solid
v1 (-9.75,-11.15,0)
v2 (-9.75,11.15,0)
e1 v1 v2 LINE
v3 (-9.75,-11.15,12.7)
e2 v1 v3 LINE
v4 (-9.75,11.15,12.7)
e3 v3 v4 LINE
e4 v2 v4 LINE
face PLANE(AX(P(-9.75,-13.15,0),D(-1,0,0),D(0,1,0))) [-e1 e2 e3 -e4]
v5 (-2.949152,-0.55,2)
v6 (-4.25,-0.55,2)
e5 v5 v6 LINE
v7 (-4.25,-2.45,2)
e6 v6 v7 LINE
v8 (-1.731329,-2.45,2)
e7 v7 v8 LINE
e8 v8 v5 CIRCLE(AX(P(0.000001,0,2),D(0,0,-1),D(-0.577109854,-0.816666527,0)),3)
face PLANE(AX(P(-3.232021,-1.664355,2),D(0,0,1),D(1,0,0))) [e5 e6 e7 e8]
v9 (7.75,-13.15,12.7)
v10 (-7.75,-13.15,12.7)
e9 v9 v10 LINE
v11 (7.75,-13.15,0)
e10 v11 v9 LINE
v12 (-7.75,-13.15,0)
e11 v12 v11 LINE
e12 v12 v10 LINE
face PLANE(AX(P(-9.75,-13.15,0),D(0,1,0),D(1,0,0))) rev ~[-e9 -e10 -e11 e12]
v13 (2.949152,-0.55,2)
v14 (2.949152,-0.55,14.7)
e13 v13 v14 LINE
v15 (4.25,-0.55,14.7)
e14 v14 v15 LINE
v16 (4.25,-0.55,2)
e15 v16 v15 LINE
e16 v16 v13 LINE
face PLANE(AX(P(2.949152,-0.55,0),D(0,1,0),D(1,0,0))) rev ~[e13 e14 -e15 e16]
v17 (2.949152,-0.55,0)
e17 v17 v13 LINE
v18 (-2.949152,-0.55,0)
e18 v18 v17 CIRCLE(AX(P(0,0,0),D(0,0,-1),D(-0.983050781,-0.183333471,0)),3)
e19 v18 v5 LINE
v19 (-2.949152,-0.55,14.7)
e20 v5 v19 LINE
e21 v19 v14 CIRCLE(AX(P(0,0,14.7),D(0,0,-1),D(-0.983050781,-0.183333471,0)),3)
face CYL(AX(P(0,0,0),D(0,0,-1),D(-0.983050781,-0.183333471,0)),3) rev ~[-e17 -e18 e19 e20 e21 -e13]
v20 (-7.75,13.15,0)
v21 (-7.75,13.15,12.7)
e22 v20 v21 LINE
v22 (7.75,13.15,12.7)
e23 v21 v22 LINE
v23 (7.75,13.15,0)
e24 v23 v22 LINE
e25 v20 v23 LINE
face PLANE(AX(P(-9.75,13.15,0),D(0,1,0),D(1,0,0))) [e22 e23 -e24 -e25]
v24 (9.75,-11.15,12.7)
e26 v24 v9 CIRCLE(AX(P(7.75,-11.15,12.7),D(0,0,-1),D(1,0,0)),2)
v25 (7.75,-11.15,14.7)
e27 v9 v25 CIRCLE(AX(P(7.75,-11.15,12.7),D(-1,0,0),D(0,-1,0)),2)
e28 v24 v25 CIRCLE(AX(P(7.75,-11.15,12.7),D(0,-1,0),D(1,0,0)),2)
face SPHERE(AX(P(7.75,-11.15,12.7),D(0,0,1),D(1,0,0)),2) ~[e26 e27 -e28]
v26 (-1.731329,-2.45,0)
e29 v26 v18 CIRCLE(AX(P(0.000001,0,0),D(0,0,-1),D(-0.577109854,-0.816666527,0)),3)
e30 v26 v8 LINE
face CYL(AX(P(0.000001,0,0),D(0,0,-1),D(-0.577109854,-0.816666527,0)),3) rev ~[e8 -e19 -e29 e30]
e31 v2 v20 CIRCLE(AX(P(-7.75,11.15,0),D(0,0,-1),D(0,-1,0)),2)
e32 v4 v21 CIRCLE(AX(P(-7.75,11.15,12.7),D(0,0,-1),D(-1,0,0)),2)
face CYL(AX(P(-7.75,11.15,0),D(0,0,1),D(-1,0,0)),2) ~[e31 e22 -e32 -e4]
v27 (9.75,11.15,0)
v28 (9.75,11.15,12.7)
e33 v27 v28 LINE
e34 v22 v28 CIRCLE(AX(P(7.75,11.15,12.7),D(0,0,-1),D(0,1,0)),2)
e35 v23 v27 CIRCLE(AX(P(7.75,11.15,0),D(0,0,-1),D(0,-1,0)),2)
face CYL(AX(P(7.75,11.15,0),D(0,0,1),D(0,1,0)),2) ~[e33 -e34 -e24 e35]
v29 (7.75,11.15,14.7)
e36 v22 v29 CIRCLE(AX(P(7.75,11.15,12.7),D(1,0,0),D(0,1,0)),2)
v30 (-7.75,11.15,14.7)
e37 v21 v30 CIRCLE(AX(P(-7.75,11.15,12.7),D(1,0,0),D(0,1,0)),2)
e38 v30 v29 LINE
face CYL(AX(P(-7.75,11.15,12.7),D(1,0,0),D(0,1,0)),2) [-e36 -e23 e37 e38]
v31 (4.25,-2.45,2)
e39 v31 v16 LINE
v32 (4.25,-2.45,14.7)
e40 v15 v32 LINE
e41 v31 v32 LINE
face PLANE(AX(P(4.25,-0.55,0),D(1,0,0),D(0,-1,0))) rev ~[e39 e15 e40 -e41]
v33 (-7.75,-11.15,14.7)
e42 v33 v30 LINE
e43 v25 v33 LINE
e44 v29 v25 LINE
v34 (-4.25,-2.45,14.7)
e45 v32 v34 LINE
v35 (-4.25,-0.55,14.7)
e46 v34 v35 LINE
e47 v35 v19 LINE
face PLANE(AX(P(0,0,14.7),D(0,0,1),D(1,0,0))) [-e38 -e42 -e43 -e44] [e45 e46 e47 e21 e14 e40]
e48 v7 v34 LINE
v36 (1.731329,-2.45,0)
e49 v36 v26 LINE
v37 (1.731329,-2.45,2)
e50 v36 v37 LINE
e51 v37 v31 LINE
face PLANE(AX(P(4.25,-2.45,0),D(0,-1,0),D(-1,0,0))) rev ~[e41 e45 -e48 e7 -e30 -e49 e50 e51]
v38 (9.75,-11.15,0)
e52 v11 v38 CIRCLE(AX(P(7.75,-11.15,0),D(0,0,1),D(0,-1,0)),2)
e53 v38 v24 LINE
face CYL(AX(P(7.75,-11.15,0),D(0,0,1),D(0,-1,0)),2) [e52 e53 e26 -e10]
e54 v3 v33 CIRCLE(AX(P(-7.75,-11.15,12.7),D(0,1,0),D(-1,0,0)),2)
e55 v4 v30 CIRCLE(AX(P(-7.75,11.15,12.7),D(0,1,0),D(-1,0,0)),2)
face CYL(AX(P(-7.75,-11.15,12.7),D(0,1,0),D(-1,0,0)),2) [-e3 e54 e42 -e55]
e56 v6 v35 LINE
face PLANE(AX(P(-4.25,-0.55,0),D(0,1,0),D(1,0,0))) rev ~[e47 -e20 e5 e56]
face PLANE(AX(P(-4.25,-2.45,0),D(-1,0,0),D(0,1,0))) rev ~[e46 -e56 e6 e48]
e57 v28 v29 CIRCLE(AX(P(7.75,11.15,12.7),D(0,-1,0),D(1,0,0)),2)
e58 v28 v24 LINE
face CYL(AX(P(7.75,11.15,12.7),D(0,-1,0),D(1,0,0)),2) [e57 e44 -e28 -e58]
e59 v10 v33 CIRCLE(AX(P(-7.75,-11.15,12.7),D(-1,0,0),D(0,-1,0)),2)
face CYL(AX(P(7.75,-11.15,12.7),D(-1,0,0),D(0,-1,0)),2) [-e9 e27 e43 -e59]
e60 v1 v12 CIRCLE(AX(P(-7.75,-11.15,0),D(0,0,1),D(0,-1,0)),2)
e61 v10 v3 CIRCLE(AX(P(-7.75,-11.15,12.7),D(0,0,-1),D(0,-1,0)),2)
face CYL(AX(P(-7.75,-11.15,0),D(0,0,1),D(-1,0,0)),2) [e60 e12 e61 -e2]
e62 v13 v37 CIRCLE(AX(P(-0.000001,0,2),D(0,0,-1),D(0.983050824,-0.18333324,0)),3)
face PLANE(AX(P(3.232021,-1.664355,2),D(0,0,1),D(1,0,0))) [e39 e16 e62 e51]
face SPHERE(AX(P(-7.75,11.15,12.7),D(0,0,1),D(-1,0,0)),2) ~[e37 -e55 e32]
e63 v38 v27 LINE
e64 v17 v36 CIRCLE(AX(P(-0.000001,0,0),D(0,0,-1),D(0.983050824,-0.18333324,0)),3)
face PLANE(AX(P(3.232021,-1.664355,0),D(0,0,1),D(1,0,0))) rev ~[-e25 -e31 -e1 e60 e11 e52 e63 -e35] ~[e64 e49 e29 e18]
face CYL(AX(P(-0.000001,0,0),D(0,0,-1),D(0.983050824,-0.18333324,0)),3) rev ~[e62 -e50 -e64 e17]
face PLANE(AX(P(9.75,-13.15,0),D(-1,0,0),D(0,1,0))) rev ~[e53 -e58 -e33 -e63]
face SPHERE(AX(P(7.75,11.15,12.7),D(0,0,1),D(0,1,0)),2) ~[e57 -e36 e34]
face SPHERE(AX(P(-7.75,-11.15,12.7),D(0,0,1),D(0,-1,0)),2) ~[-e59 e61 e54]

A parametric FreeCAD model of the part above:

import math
import FreeCAD as App
import Part
import Sketcher


def edges_at(feature, points):
    """Names of the edges that pass closest to the given points."""
    edges = feature.Shape.Edges
    near = lambda p: min(range(len(edges)), key=lambda i: edges[i].distToShape(Part.Vertex(*p))[0])
    return sorted({f"Edge{near(p) + 1}" for p in points})


def add_polygon(sketch, points):
    """Adds a closed chain of lines whose ends are joined by coincident constraints."""
    first, n = sketch.GeometryCount, len(points)
    for a, b in zip(points, points[1:] + points[:1]):
        sketch.addGeometry(Part.LineSegment(App.Vector(*a, 0), App.Vector(*b, 0)), False)
    for i in range(n):
        sketch.addConstraint(Sketcher.Constraint("Coincident", first + i, 2, first + (i + 1) % n, 1))

doc = App.newDocument("Part")
params = doc.addObject("Spreadsheet::Sheet", "Params")
for row, (alias, value) in enumerate([
    ("sketch1_radius", "3 mm"),
    ("sketch1_width", "19.5 mm"),
    ("sketch1_width2", "8.5 mm"),
    ("sketch1_height", "26.3 mm"),
    ("sketch1_height2", "1.9 mm"),
    ("pad1_length", "14.7 mm"),
    ("fillet_radius", "2 mm"),
    ("fillet2_radius", "2 mm"),
    ("sketch2_radius", "3 mm"),
    ("sketch2_height", "1.9 mm"),
    ("pad2_length", "2 mm"),
], start=1):
    params.set(f"A{row}", alias)
    params.set(f"B{row}", "=" + value)
    params.setAlias(f"B{row}", alias)

body = doc.addObject("PartDesign::Body", "Body")

sketch1 = body.newObject("Sketcher::SketchObject", "Sketch")
sketch1.AttachmentSupport = (doc.getObject("XY_Plane"), [""])
sketch1.MapMode = "FlatFace"
add_polygon(sketch1, [(-9.75, 13.15), (-9.75, -13.15), (9.75, -13.15), (9.75, 13.15)])
sketch1.addGeometry(Part.LineSegment(App.Vector(-4.25, -0.55, 0), App.Vector(-2.949152, -0.55, 0)), False)
sketch1.addGeometry(Part.ArcOfCircle(Part.Circle(App.Vector(0, 0, 0), App.Vector(0, 0, 1), 3), math.radians(-10.563986), math.radians(190.563986)), False)
sketch1.addGeometry(Part.LineSegment(App.Vector(2.949152, -0.55, 0), App.Vector(4.25, -0.55, 0)), False)
sketch1.addGeometry(Part.LineSegment(App.Vector(4.25, -0.55, 0), App.Vector(4.25, -2.45, 0)), False)
sketch1.addGeometry(Part.LineSegment(App.Vector(4.25, -2.45, 0), App.Vector(-4.25, -2.45, 0)), False)
sketch1.addGeometry(Part.LineSegment(App.Vector(-4.25, -2.45, 0), App.Vector(-4.25, -0.55, 0)), False)
sketch1.addConstraint(Sketcher.Constraint("Coincident", 4, 2, 5, 2))
sketch1.addConstraint(Sketcher.Constraint("Coincident", 5, 1, 6, 1))
sketch1.addConstraint(Sketcher.Constraint("Coincident", 6, 2, 7, 1))
sketch1.addConstraint(Sketcher.Constraint("Coincident", 7, 2, 8, 1))
sketch1.addConstraint(Sketcher.Constraint("Coincident", 8, 2, 9, 1))
sketch1.addConstraint(Sketcher.Constraint("Coincident", 9, 2, 4, 1))
sketch1.addConstraint(Sketcher.Constraint("Vertical", 0))
sketch1.addConstraint(Sketcher.Constraint("Horizontal", 1))
sketch1.addConstraint(Sketcher.Constraint("Vertical", 2))
sketch1.addConstraint(Sketcher.Constraint("Horizontal", 3))
sketch1.addConstraint(Sketcher.Constraint("Horizontal", 4))
sketch1.addConstraint(Sketcher.Constraint("Horizontal", 6))
sketch1.addConstraint(Sketcher.Constraint("Vertical", 7))
sketch1.addConstraint(Sketcher.Constraint("Horizontal", 8))
sketch1.addConstraint(Sketcher.Constraint("Vertical", 9))
sketch1.addConstraint(Sketcher.Constraint("Coincident", 5, 3, -1, 1))
sketch1.addConstraint(Sketcher.Constraint("Symmetric", 0, 2, 2, 2, -1, 1))
sketch1.addConstraint(Sketcher.Constraint("Symmetric", 6, 2, 9, 2, -2))
sketch1.addConstraint(Sketcher.Constraint("Radius", 5, 3.0))
sketch1.addConstraint(Sketcher.Constraint("DistanceX", 1, 1, 1, 2, 19.5))
sketch1.addConstraint(Sketcher.Constraint("DistanceX", 8, 2, 8, 1, 8.5))
sketch1.addConstraint(Sketcher.Constraint("DistanceY", 0, 2, 0, 1, 26.3))
sketch1.addConstraint(Sketcher.Constraint("DistanceY", 7, 2, 7, 1, 1.9))
sketch1.addConstraint(Sketcher.Constraint("DistanceY", 0, 2, 4, 2, 12.6))
sketch1.setExpression("Constraints[22]", "Params.sketch1_radius")
sketch1.setExpression("Constraints[23]", "Params.sketch1_width")
sketch1.setExpression("Constraints[24]", "Params.sketch1_width2")
sketch1.setExpression("Constraints[25]", "Params.sketch1_height")
sketch1.setExpression("Constraints[26]", "Params.sketch1_height2")
pad1 = body.newObject("PartDesign::Pad", "Pad")
pad1.Profile = sketch1
pad1.setExpression("Length", "Params.pad1_length")
doc.recompute()

fillet = body.newObject("PartDesign::Fillet", "Fillet")
fillet.Base = (pad1, edges_at(pad1, [
    (-9.75, 13.15, 7.35),
    (-9.75, -13.15, 7.35),
    (9.75, -13.15, 7.35),
    (9.75, 13.15, 7.35),
]))
fillet.setExpression("Radius", "Params.fillet_radius")
doc.recompute()

fillet2 = body.newObject("PartDesign::Fillet", "Fillet001")
fillet2.Base = (fillet, edges_at(fillet, [(-9.75, 0, 14.7)]))
fillet2.setExpression("Radius", "Params.fillet2_radius")

sketch2 = body.newObject("Sketcher::SketchObject", "Sketch001")
sketch2.AttachmentSupport = (doc.getObject("XY_Plane"), [""])
sketch2.MapMode = "FlatFace"
sketch2.addGeometry(Part.LineSegment(App.Vector(4.25, -0.55, 0), App.Vector(2.949152, -0.55, 0)), False)
sketch2.addGeometry(Part.ArcOfCircle(Part.Circle(App.Vector(-0.000001, 0, 0), App.Vector(0, 0, 1), 3), math.radians(-54.752479), math.radians(-10.563972)), False)
sketch2.addGeometry(Part.LineSegment(App.Vector(1.731329, -2.45, 0), App.Vector(4.25, -2.45, 0)), False)
sketch2.addGeometry(Part.LineSegment(App.Vector(4.25, -2.45, 0), App.Vector(4.25, -0.55, 0)), False)
sketch2.addGeometry(Part.ArcOfCircle(Part.Circle(App.Vector(0.000001, 0, 0), App.Vector(0, 0, 1), 3), math.radians(-169.436028), math.radians(-125.247521)), False)
sketch2.addGeometry(Part.LineSegment(App.Vector(-2.949152, -0.55, 0), App.Vector(-4.25, -0.55, 0)), False)
sketch2.addGeometry(Part.LineSegment(App.Vector(-4.25, -0.55, 0), App.Vector(-4.25, -2.45, 0)), False)
sketch2.addGeometry(Part.LineSegment(App.Vector(-4.25, -2.45, 0), App.Vector(-1.731329, -2.45, 0)), False)
sketch2.addConstraint(Sketcher.Constraint("Coincident", 0, 2, 1, 2))
sketch2.addConstraint(Sketcher.Constraint("Coincident", 1, 1, 2, 1))
sketch2.addConstraint(Sketcher.Constraint("Coincident", 2, 2, 3, 1))
sketch2.addConstraint(Sketcher.Constraint("Coincident", 3, 2, 0, 1))
sketch2.addConstraint(Sketcher.Constraint("Coincident", 4, 1, 5, 1))
sketch2.addConstraint(Sketcher.Constraint("Coincident", 5, 2, 6, 1))
sketch2.addConstraint(Sketcher.Constraint("Coincident", 6, 2, 7, 1))
sketch2.addConstraint(Sketcher.Constraint("Coincident", 7, 2, 4, 2))
sketch2.addConstraint(Sketcher.Constraint("Horizontal", 0))
sketch2.addConstraint(Sketcher.Constraint("Horizontal", 2))
sketch2.addConstraint(Sketcher.Constraint("Vertical", 3))
sketch2.addConstraint(Sketcher.Constraint("Horizontal", 5))
sketch2.addConstraint(Sketcher.Constraint("Vertical", 6))
sketch2.addConstraint(Sketcher.Constraint("Horizontal", 7))
sketch2.addConstraint(Sketcher.Constraint("Coincident", 1, 3, -1, 1))
sketch2.addConstraint(Sketcher.Constraint("Coincident", 4, 3, -1, 1))
sketch2.addConstraint(Sketcher.Constraint("Equal", 1, 4))
sketch2.addConstraint(Sketcher.Constraint("Symmetric", 3, 2, 5, 2, -2))
sketch2.addConstraint(Sketcher.Constraint("Horizontal", 2, 2, 6, 2))
sketch2.addConstraint(Sketcher.Constraint("Radius", 1, 3.0))
sketch2.addConstraint(Sketcher.Constraint("DistanceY", 3, 1, 3, 2, 1.9))
sketch2.addConstraint(Sketcher.Constraint("DistanceY", 0, 2, -1, 1, 0.55))
sketch2.addConstraint(Sketcher.Constraint("DistanceX", -1, 1, 2, 2, 4.25))
sketch2.setExpression("Constraints[19]", "Params.sketch2_radius")
sketch2.setExpression("Constraints[20]", "Params.sketch2_height")
pad2 = body.newObject("PartDesign::Pad", "Pad001")
pad2.Profile = sketch2
pad2.setExpression("Length", "Params.pad2_length")

doc.recompute()
